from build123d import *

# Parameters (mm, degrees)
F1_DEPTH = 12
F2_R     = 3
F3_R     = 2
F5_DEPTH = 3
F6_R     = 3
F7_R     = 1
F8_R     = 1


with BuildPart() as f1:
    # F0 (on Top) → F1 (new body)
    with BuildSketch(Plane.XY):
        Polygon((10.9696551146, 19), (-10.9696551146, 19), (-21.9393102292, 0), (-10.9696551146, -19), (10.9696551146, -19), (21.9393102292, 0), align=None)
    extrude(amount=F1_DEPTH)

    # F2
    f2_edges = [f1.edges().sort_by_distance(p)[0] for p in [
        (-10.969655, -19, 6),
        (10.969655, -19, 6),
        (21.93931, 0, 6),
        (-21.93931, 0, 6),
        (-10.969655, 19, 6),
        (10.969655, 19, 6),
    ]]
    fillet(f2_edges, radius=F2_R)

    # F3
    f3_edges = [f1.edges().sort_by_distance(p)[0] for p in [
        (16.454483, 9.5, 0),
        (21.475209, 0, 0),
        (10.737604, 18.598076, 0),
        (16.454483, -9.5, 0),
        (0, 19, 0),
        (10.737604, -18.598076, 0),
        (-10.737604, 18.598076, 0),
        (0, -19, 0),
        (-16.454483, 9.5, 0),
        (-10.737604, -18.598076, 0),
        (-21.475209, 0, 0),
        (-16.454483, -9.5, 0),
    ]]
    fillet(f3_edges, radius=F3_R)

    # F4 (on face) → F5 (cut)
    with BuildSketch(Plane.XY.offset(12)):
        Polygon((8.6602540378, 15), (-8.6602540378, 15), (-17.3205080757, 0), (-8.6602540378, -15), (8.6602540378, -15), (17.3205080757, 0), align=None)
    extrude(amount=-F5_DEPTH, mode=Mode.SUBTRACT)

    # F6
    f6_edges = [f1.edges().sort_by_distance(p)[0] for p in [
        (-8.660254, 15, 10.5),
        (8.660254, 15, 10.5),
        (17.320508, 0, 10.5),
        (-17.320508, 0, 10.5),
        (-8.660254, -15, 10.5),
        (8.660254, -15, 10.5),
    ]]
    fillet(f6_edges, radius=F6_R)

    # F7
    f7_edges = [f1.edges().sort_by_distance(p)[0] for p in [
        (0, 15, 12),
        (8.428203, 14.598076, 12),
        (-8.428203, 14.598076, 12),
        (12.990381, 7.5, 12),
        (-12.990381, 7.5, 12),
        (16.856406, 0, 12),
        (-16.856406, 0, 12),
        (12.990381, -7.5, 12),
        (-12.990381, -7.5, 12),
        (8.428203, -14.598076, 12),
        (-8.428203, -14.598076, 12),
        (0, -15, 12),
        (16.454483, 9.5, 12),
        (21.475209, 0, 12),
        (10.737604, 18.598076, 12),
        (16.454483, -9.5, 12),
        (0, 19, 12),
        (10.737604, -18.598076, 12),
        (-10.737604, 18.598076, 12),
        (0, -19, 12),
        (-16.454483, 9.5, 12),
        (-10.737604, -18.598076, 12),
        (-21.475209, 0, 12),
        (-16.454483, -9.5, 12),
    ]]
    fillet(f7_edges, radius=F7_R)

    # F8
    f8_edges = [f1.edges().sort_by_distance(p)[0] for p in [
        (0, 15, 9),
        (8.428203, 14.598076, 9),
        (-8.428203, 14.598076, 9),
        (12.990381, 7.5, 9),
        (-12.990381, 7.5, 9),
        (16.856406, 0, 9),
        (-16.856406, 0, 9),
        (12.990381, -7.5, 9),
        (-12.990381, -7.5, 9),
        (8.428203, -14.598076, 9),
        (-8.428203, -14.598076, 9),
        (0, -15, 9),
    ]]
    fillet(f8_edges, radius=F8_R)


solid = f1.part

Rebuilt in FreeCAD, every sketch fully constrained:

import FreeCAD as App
import Part
import Sketcher

V = App.Vector
Q = App.Units.Quantity


def edges_at(feature, points):
    """Names of the edges that pass closest to the given points."""
    edges = feature.Shape.Edges
    near = lambda p: min(range(len(edges)), key=lambda i: edges[i].distToShape(Part.Vertex(*p))[0])
    return sorted({f"Edge{near(p) + 1}" for p in points})


def add_polygon(sketch, points):
    """Adds a closed chain of lines whose ends are joined by coincident constraints."""
    first, n = sketch.GeometryCount, len(points)
    for a, b in zip(points, points[1:] + points[:1]):
        sketch.addGeometry(Part.LineSegment(App.Vector(*a, 0), App.Vector(*b, 0)), False)
    for i in range(n):
        sketch.addConstraint(Sketcher.Constraint("Coincident", first + i, 2, first + (i + 1) % n, 1))

doc = App.newDocument("Part")
body = doc.addObject("PartDesign::Body", "Body")

# Sketch on XY plane
sketch1 = body.newObject("Sketcher::SketchObject", "Sketch")
sketch1.AttachmentSupport = (doc.getObject("XY_Plane"), [""])
sketch1.MapMode = "FlatFace"
add_polygon(sketch1, [(11, 19), (-11, 19), (-22, 0), (-11, -19), (11, -19), (22, 0)])  # lines 0-5
sketch1.addConstraint([
    Sketcher.Constraint("Horizontal", 0),
    Sketcher.Constraint("Horizontal", 3),
    Sketcher.Constraint("Symmetric", 0, 2, 3, 2, -1, 1),
    Sketcher.Constraint("Symmetric", 1, 2, 4, 2, -1, 1),
    Sketcher.Constraint("PointOnObject", 1, 2, -1),
    Sketcher.Constraint("Parallel", 2, 5),
    Sketcher.Constraint("Vertical", 0, 2, 2, 2),
    Sketcher.Constraint("Angle", 1, Q("-120 deg")),
    Sketcher.Constraint("DistanceY", -1, 1, 0, 2, 19.0),
    Sketcher.Constraint("DistanceX", 0, 2, 0, 1, 21.93931),
])
pad1 = body.newObject("PartDesign::Pad", "Pad")
pad1.Profile = sketch1
pad1.Length = 12
doc.recompute()

fillet = body.newObject("PartDesign::Fillet", "Fillet")
fillet.Base = (pad1, edges_at(pad1, [
    (-10.97, -19, 6),
    (10.97, -19, 6),
    (21.939, 0, 6),
    (-21.939, 0, 6),
    (-10.97, 19, 6),
    (10.97, 19, 6),
]))
fillet.Radius = 3
doc.recompute()

fillet2 = body.newObject("PartDesign::Fillet", "Fillet001")
fillet2.Base = (fillet, edges_at(fillet, [
    (16.454, 9.5, 0),
    (21.475, 0, 0),
    (10.738, 18.598, 0),
    (16.454, -9.5, 0),
    (0, 19, 0),
    (10.738, -18.598, 0),
    (-10.738, 18.598, 0),
    (0, -19, 0),
    (-16.454, 9.5, 0),
    (-10.738, -18.598, 0),
    (-21.475, 0, 0),
    (-16.454, -9.5, 0),
]))
fillet2.Radius = 2

# Sketch on XY plane
sketch2 = body.newObject("Sketcher::SketchObject", "Sketch001")
sketch2.AttachmentSupport = (doc.getObject("XY_Plane"), [""])
sketch2.MapMode = "FlatFace"
sketch2.AttachmentOffset = App.Placement(V(0, 0, 12), App.Rotation())
add_polygon(sketch2, [(9, 15), (-9, 15), (-17, 0), (-9, -15), (9, -15), (17, 0)])  # lines 0-5
sketch2.addConstraint([
    Sketcher.Constraint("Horizontal", 0),
    Sketcher.Constraint("Horizontal", 3),
    Sketcher.Constraint("Symmetric", 0, 2, 3, 2, -1, 1),
    Sketcher.Constraint("Symmetric", 1, 2, 4, 2, -1, 1),
    Sketcher.Constraint("PointOnObject", 1, 2, -1),
    Sketcher.Constraint("Parallel", 2, 5),
    Sketcher.Constraint("Vertical", 0, 2, 2, 2),
    Sketcher.Constraint("Angle", 1, Q("-120 deg")),
    Sketcher.Constraint("DistanceY", -1, 1, 0, 2, 15.0),
    Sketcher.Constraint("DistanceX", 0, 2, 0, 1, 17.320508),
])
pocket1 = body.newObject("PartDesign::Pocket", "Pocket")
pocket1.Profile = sketch2
pocket1.Length = 3
doc.recompute()

fillet3 = body.newObject("PartDesign::Fillet", "Fillet002")
fillet3.Base = (pocket1, edges_at(pocket1, [
    (-8.66, 15, 10.5),
    (8.66, 15, 10.5),
    (17.321, 0, 10.5),
    (-17.321, 0, 10.5),
    (-8.66, -15, 10.5),
    (8.66, -15, 10.5),
]))
fillet3.Radius = 3
doc.recompute()

fillet4 = body.newObject("PartDesign::Fillet", "Fillet003")
fillet4.Base = (fillet3, edges_at(fillet3, [
    (0, 15, 12),
    (8.428, 14.598, 12),
    (-8.428, 14.598, 12),
    (12.99, 7.5, 12),
    (-12.99, 7.5, 12),
    (16.856, 0, 12),
    (-16.856, 0, 12),
    (12.99, -7.5, 12),
    (-12.99, -7.5, 12),
    (8.428, -14.598, 12),
    (-8.428, -14.598, 12),
    (0, -15, 12),
    (16.454, 9.5, 12),
    (21.475, 0, 12),
    (10.738, 18.598, 12),
    (16.454, -9.5, 12),
    (0, 19, 12),
    (10.738, -18.598, 12),
    (-10.738, 18.598, 12),
    (0, -19, 12),
    (-16.454, 9.5, 12),
    (-10.738, -18.598, 12),
    (-21.475, 0, 12),
    (-16.454, -9.5, 12),
]))
fillet4.Radius = 1
doc.recompute()

fillet5 = body.newObject("PartDesign::Fillet", "Fillet004")
fillet5.Base = (fillet4, edges_at(fillet4, [
    (0, 15, 9),
    (8.428, 14.598, 9),
    (-8.428, 14.598, 9),
    (12.99, 7.5, 9),
    (-12.99, 7.5, 9),
    (16.856, 0, 9),
    (-16.856, 0, 9),
    (12.99, -7.5, 9),
    (-12.99, -7.5, 9),
    (8.428, -14.598, 9),
    (-8.428, -14.598, 9),
    (0, -15, 9),
]))
fillet5.Radius = 1

doc.recompute()
